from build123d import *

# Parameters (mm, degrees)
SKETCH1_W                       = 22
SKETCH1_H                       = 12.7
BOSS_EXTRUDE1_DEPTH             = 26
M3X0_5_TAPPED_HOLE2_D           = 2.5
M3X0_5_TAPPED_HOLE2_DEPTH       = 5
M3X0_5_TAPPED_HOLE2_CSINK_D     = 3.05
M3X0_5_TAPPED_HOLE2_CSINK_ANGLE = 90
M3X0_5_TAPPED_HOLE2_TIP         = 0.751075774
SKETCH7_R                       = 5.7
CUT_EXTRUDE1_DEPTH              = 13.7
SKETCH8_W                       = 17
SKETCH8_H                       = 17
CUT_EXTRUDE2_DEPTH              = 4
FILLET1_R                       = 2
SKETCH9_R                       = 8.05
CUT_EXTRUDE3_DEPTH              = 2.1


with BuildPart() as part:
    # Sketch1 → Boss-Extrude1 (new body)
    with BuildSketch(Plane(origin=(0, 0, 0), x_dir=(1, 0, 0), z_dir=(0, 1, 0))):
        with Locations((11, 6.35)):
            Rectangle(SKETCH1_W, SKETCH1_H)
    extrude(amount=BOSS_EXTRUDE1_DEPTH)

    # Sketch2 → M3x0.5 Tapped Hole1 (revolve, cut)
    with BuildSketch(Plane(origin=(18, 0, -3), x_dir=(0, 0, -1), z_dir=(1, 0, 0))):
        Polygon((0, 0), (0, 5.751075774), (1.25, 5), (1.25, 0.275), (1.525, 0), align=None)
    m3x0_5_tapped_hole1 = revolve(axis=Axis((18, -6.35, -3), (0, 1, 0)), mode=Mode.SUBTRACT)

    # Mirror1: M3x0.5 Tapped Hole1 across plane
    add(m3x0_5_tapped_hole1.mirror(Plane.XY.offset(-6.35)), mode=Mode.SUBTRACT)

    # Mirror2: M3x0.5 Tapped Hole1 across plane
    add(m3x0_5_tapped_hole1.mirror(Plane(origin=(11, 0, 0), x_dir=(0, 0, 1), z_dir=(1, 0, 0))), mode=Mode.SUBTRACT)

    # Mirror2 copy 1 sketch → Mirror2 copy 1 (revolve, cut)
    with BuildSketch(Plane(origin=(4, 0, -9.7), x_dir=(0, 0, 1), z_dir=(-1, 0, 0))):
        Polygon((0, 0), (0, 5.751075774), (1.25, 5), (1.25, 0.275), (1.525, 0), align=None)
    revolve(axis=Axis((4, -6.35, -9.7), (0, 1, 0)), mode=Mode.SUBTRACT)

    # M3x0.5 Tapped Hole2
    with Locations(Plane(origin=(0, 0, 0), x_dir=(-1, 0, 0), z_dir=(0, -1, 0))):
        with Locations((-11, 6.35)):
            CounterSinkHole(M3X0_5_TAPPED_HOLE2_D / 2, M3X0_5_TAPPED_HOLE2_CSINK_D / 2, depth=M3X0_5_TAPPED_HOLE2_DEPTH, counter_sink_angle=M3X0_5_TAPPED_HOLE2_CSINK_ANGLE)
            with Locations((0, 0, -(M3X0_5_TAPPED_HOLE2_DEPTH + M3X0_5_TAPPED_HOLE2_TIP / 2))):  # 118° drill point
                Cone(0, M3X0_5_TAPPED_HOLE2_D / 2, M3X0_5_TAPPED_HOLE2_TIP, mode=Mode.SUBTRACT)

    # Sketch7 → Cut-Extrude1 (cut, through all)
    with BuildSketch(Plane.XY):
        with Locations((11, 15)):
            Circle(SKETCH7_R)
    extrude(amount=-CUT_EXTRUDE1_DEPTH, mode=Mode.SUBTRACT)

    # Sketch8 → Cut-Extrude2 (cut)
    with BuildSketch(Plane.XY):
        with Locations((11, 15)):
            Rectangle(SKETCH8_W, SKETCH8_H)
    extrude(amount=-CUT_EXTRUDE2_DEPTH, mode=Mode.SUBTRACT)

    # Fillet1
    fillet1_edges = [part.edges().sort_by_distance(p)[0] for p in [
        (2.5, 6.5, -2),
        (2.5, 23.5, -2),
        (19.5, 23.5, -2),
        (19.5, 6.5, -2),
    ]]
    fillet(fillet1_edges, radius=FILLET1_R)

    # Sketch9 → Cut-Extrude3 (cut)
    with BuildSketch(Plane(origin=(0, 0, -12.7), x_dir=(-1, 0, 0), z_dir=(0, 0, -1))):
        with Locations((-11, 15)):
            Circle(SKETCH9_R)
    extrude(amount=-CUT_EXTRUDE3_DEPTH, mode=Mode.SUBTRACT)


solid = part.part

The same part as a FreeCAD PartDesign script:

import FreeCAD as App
import Part
import Sketcher

V = App.Vector
Q = App.Units.Quantity


def edges_at(feature, points):
    """Names of the edges that pass closest to the given points."""
    edges = feature.Shape.Edges
    near = lambda p: min(range(len(edges)), key=lambda i: edges[i].distToShape(Part.Vertex(*p))[0])
    return sorted({f"Edge{near(p) + 1}" for p in points})

doc = App.newDocument("Part")
body = doc.addObject("PartDesign::Body", "Body")

# Sketch on XZ plane
sketch1 = body.newObject("Sketcher::SketchObject", "Sketch")
sketch1.AttachmentSupport = (doc.getObject("XZ_Plane"), [""])
sketch1.MapMode = "FlatFace"
sketch1.addGeometry([
    Part.LineSegment(V(0, -13, 0), V(0, 0, 0)),
    Part.LineSegment(V(0, 0, 0), V(22, 0, 0)),
    Part.LineSegment(V(22, 0, 0), V(22, -13, 0)),
    Part.LineSegment(V(22, -13, 0), V(0, -13, 0)),
], False)
sketch1.addConstraint([
    Sketcher.Constraint("Coincident", 0, 2, 1, 1),
    Sketcher.Constraint("Coincident", 1, 2, 2, 1),
    Sketcher.Constraint("Coincident", 2, 2, 3, 1),
    Sketcher.Constraint("Coincident", 3, 2, 0, 1),
    Sketcher.Constraint("Vertical", 0),
    Sketcher.Constraint("Horizontal", 1),
    Sketcher.Constraint("Vertical", 2),
    Sketcher.Constraint("Horizontal", 3),
    Sketcher.Constraint("Coincident", 0, 2, -1, 1),
    Sketcher.Constraint("DistanceX", 1, 1, 1, 2, 22.0),
    Sketcher.Constraint("DistanceY", 0, 1, 0, 2, 12.7),
])
pad1 = body.newObject("PartDesign::Pad", "Pad")
pad1.Profile = sketch1
pad1.Length = 26
pad1.Reversed = True

# Sketch on YZ plane
sketch2 = body.newObject("Sketcher::SketchObject", "Sketch001")
sketch2.AttachmentSupport = (doc.getObject("YZ_Plane"), [""])
sketch2.MapMode = "FlatFace"
sketch2.AttachmentOffset = App.Placement(V(0, 0, 18), App.Rotation())
sketch2.addGeometry([
    Part.LineSegment(V(5.75, -3, 0), V(0, -3, 0)),  # 0
    Part.LineSegment(V(0, -3, 0), V(0, -4.53, 0)),  # 1
    Part.LineSegment(V(0, -4.53, 0), V(0.28, -4.25, 0)),  # 2
    Part.LineSegment(V(0.28, -4.25, 0), V(5, -4.25, 0)),  # 3
    Part.LineSegment(V(5, -4.25, 0), V(5.75, -3, 0)),  # 4
], False)
sketch2.addGeometry(Part.LineSegment(V(0, -3, 0), V(5.75, -3, 0)), True)  # axis
sketch2.addConstraint([
    Sketcher.Constraint("Coincident", 0, 2, 1, 1),
    Sketcher.Constraint("Coincident", 1, 2, 2, 1),
    Sketcher.Constraint("Coincident", 2, 2, 3, 1),
    Sketcher.Constraint("Coincident", 3, 2, 4, 1),
    Sketcher.Constraint("Coincident", 4, 2, 0, 1),
    Sketcher.Constraint("Horizontal", 0),
    Sketcher.Constraint("Vertical", 1),
    Sketcher.Constraint("Horizontal", 3),
    Sketcher.Constraint("Horizontal", 5),
    Sketcher.Constraint("Coincident", 5, 1, 0, 2),
    Sketcher.Constraint("PointOnObject", 0, 2, -2),
    Sketcher.Constraint("Equal", 0, 5),
    Sketcher.Constraint("Angle", 2, Q("45 deg")),
    Sketcher.Constraint("Angle", 4, Q("59 deg")),
    Sketcher.Constraint("DistanceY", 0, 2, -1, 1, 3.0),
    Sketcher.Constraint("DistanceX", -1, 1, 3, 2, 5.0),
    Sketcher.Constraint("DistanceX", 3, 1, 3, 2, 4.725),
    Sketcher.Constraint("DistanceY", 1, 2, 1, 1, 1.525),
])
groove = body.newObject("PartDesign::Groove", "Groove")
groove.Profile = sketch2
groove.ReferenceAxis = (sketch2, ["Axis0"])
groove.Angle = 360
doc.recompute()

datumplane = body.newObject("PartDesign::Plane", "DatumPlane")
datumplane.AttachmentSupport = (doc.getObject("XY_Plane"), [""])
datumplane.MapMode = "FlatFace"
datumplane.AttachmentOffset = App.Placement(V(0, 0, -6.35), App.Rotation())
mirrored = body.newObject("PartDesign::Mirrored", "Mirrored")
mirrored.Originals = [groove]
mirrored.MirrorPlane = (datumplane, [""])
body.Tip = mirrored
doc.recompute()

datumplane2 = body.newObject("PartDesign::Plane", "DatumPlane001")
datumplane2.AttachmentSupport = (doc.getObject("YZ_Plane"), [""])
datumplane2.MapMode = "FlatFace"
datumplane2.AttachmentOffset = App.Placement(V(0, 0, 11), App.Rotation())
mirrored2 = body.newObject("PartDesign::Mirrored", "Mirrored001")
mirrored2.Originals = [groove]
mirrored2.MirrorPlane = (datumplane2, [""])
body.Tip = mirrored2

# Sketch on YZ plane
sketch3 = body.newObject("Sketcher::SketchObject", "Sketch002")
sketch3.AttachmentSupport = (doc.getObject("YZ_Plane"), [""])
sketch3.MapMode = "FlatFace"
sketch3.AttachmentOffset = App.Placement(V(0, 0, 4), App.Rotation())
sketch3.addGeometry([
    Part.LineSegment(V(5.75, -9.7, 0), V(0, -9.7, 0)),  # 0
    Part.LineSegment(V(0, -9.7, 0), V(0, -8.18, 0)),  # 1
    Part.LineSegment(V(0, -8.18, 0), V(0.28, -8.45, 0)),  # 2
    Part.LineSegment(V(0.28, -8.45, 0), V(5, -8.45, 0)),  # 3
    Part.LineSegment(V(5, -8.45, 0), V(5.75, -9.7, 0)),  # 4
], False)
sketch3.addGeometry(Part.LineSegment(V(0, -9.7, 0), V(5.75, -9.7, 0)), True)  # axis
sketch3.addConstraint([
    Sketcher.Constraint("Coincident", 0, 2, 1, 1),
    Sketcher.Constraint("Coincident", 1, 2, 2, 1),
    Sketcher.Constraint("Coincident", 2, 2, 3, 1),
    Sketcher.Constraint("Coincident", 3, 2, 4, 1),
    Sketcher.Constraint("Coincident", 4, 2, 0, 1),
    Sketcher.Constraint("Horizontal", 0),
    Sketcher.Constraint("Vertical", 1),
    Sketcher.Constraint("Horizontal", 3),
    Sketcher.Constraint("Horizontal", 5),
    Sketcher.Constraint("Coincident", 5, 1, 0, 2),
    Sketcher.Constraint("PointOnObject", 0, 2, -2),
    Sketcher.Constraint("Equal", 0, 5),
    Sketcher.Constraint("Angle", 2, Q("-45 deg")),
    Sketcher.Constraint("Angle", 4, Q("-59 deg")),
    Sketcher.Constraint("DistanceX", -1, 1, 3, 2, 5.0),
    Sketcher.Constraint("DistanceY", 0, 2, -1, 1, 9.7),
    Sketcher.Constraint("DistanceX", 3, 1, 3, 2, 4.725),
    Sketcher.Constraint("DistanceY", 1, 1, 1, 2, 1.525),
])
groove2 = body.newObject("PartDesign::Groove", "Groove001")
groove2.Profile = sketch3
groove2.ReferenceAxis = (sketch3, ["Axis0"])
groove2.Angle = 360

# Sketch on XZ plane
sketch4 = body.newObject("Sketcher::SketchObject", "Sketch003")
sketch4.AttachmentSupport = (doc.getObject("XZ_Plane"), [""])
sketch4.MapMode = "FlatFace"
sketch4.addGeometry(Part.Circle(V(11, -6.3, 0), V(0, 0, 1), 1.2), False)
sketch4.addConstraint([
    Sketcher.Constraint("Diameter", 0, 2.5),
    Sketcher.Constraint("DistanceX", -1, 1, 0, 3, 11.0),
    Sketcher.Constraint("DistanceY", 0, 3, -1, 1, 6.35),
])
doc.recompute()
hole = body.newObject("PartDesign::Hole", "Hole")
hole.Profile = sketch4
hole.ThreadType = "None"
hole.Diameter = 2.5
hole.DepthType = "Dimension"
hole.Depth = 5
hole.DrillPoint = "Angled"
hole.DrillPointAngle = 118
hole.HoleCutType = "Countersink"
hole.HoleCutDiameter = 3.05
hole.HoleCutCountersinkAngle = 90

# Sketch on XY plane
sketch5 = body.newObject("Sketcher::SketchObject", "Sketch004")
sketch5.AttachmentSupport = (doc.getObject("XY_Plane"), [""])
sketch5.MapMode = "FlatFace"
sketch5.addGeometry(Part.Circle(V(11, 15, 0), V(0, 0, 1), 6), False)
sketch5.addConstraint([
    Sketcher.Constraint("Diameter", 0, 11.4),
    Sketcher.Constraint("DistanceX", -1, 1, 0, 3, 11.0),
    Sketcher.Constraint("DistanceY", -1, 1, 0, 3, 15.0),
])
pocket1 = body.newObject("PartDesign::Pocket", "Pocket")
pocket1.Profile = sketch5
pocket1.Type = "ThroughAll"

# Sketch on XY plane
sketch6 = body.newObject("Sketcher::SketchObject", "Sketch005")
sketch6.AttachmentSupport = (doc.getObject("XY_Plane"), [""])
sketch6.MapMode = "FlatFace"
sketch6.addGeometry([
    Part.LineSegment(V(2, 24, 0), V(2, 6, 0)),
    Part.LineSegment(V(2, 6, 0), V(20, 6, 0)),
    Part.LineSegment(V(20, 6, 0), V(20, 24, 0)),
    Part.LineSegment(V(20, 24, 0), V(2, 24, 0)),
], False)
sketch6.addConstraint([
    Sketcher.Constraint("Coincident", 0, 2, 1, 1),
    Sketcher.Constraint("Coincident", 1, 2, 2, 1),
    Sketcher.Constraint("Coincident", 2, 2, 3, 1),
    Sketcher.Constraint("Coincident", 3, 2, 0, 1),
    Sketcher.Constraint("Vertical", 0),
    Sketcher.Constraint("Horizontal", 1),
    Sketcher.Constraint("Vertical", 2),
    Sketcher.Constraint("Horizontal", 3),
    Sketcher.Constraint("Equal", 3, 0),
    Sketcher.Constraint("DistanceX", 1, 1, 1, 2, 17.0),
    Sketcher.Constraint("DistanceX", -1, 1, 0, 2, 2.5),
    Sketcher.Constraint("DistanceY", -1, 1, 0, 2, 6.5),
])
pocket2 = body.newObject("PartDesign::Pocket", "Pocket001")
pocket2.Profile = sketch6
pocket2.Length = 4
doc.recompute()

fillet = body.newObject("PartDesign::Fillet", "Fillet")
fillet.Base = (pocket2, edges_at(pocket2, [
    (2.5, 6.5, -2),
    (2.5, 23.5, -2),
    (19.5, 23.5, -2),
    (19.5, 6.5, -2),
]))
fillet.Radius = 2

# Sketch on XY plane
sketch7 = body.newObject("Sketcher::SketchObject", "Sketch006")
sketch7.AttachmentSupport = (doc.getObject("XY_Plane"), [""])
sketch7.MapMode = "FlatFace"
sketch7.AttachmentOffset = App.Placement(V(0, 0, -12.7), App.Rotation())
sketch7.addGeometry(Part.Circle(V(11, 15, 0), V(0, 0, 1), 8), False)
sketch7.addConstraint([
    Sketcher.Constraint("Diameter", 0, 16.1),
    Sketcher.Constraint("DistanceX", -1, 1, 0, 3, 11.0),
    Sketcher.Constraint("DistanceY", -1, 1, 0, 3, 15.0),
])
pocket3 = body.newObject("PartDesign::Pocket", "Pocket002")
pocket3.Profile = sketch7
pocket3.Length = 2.1
pocket3.Reversed = True

doc.recompute()
